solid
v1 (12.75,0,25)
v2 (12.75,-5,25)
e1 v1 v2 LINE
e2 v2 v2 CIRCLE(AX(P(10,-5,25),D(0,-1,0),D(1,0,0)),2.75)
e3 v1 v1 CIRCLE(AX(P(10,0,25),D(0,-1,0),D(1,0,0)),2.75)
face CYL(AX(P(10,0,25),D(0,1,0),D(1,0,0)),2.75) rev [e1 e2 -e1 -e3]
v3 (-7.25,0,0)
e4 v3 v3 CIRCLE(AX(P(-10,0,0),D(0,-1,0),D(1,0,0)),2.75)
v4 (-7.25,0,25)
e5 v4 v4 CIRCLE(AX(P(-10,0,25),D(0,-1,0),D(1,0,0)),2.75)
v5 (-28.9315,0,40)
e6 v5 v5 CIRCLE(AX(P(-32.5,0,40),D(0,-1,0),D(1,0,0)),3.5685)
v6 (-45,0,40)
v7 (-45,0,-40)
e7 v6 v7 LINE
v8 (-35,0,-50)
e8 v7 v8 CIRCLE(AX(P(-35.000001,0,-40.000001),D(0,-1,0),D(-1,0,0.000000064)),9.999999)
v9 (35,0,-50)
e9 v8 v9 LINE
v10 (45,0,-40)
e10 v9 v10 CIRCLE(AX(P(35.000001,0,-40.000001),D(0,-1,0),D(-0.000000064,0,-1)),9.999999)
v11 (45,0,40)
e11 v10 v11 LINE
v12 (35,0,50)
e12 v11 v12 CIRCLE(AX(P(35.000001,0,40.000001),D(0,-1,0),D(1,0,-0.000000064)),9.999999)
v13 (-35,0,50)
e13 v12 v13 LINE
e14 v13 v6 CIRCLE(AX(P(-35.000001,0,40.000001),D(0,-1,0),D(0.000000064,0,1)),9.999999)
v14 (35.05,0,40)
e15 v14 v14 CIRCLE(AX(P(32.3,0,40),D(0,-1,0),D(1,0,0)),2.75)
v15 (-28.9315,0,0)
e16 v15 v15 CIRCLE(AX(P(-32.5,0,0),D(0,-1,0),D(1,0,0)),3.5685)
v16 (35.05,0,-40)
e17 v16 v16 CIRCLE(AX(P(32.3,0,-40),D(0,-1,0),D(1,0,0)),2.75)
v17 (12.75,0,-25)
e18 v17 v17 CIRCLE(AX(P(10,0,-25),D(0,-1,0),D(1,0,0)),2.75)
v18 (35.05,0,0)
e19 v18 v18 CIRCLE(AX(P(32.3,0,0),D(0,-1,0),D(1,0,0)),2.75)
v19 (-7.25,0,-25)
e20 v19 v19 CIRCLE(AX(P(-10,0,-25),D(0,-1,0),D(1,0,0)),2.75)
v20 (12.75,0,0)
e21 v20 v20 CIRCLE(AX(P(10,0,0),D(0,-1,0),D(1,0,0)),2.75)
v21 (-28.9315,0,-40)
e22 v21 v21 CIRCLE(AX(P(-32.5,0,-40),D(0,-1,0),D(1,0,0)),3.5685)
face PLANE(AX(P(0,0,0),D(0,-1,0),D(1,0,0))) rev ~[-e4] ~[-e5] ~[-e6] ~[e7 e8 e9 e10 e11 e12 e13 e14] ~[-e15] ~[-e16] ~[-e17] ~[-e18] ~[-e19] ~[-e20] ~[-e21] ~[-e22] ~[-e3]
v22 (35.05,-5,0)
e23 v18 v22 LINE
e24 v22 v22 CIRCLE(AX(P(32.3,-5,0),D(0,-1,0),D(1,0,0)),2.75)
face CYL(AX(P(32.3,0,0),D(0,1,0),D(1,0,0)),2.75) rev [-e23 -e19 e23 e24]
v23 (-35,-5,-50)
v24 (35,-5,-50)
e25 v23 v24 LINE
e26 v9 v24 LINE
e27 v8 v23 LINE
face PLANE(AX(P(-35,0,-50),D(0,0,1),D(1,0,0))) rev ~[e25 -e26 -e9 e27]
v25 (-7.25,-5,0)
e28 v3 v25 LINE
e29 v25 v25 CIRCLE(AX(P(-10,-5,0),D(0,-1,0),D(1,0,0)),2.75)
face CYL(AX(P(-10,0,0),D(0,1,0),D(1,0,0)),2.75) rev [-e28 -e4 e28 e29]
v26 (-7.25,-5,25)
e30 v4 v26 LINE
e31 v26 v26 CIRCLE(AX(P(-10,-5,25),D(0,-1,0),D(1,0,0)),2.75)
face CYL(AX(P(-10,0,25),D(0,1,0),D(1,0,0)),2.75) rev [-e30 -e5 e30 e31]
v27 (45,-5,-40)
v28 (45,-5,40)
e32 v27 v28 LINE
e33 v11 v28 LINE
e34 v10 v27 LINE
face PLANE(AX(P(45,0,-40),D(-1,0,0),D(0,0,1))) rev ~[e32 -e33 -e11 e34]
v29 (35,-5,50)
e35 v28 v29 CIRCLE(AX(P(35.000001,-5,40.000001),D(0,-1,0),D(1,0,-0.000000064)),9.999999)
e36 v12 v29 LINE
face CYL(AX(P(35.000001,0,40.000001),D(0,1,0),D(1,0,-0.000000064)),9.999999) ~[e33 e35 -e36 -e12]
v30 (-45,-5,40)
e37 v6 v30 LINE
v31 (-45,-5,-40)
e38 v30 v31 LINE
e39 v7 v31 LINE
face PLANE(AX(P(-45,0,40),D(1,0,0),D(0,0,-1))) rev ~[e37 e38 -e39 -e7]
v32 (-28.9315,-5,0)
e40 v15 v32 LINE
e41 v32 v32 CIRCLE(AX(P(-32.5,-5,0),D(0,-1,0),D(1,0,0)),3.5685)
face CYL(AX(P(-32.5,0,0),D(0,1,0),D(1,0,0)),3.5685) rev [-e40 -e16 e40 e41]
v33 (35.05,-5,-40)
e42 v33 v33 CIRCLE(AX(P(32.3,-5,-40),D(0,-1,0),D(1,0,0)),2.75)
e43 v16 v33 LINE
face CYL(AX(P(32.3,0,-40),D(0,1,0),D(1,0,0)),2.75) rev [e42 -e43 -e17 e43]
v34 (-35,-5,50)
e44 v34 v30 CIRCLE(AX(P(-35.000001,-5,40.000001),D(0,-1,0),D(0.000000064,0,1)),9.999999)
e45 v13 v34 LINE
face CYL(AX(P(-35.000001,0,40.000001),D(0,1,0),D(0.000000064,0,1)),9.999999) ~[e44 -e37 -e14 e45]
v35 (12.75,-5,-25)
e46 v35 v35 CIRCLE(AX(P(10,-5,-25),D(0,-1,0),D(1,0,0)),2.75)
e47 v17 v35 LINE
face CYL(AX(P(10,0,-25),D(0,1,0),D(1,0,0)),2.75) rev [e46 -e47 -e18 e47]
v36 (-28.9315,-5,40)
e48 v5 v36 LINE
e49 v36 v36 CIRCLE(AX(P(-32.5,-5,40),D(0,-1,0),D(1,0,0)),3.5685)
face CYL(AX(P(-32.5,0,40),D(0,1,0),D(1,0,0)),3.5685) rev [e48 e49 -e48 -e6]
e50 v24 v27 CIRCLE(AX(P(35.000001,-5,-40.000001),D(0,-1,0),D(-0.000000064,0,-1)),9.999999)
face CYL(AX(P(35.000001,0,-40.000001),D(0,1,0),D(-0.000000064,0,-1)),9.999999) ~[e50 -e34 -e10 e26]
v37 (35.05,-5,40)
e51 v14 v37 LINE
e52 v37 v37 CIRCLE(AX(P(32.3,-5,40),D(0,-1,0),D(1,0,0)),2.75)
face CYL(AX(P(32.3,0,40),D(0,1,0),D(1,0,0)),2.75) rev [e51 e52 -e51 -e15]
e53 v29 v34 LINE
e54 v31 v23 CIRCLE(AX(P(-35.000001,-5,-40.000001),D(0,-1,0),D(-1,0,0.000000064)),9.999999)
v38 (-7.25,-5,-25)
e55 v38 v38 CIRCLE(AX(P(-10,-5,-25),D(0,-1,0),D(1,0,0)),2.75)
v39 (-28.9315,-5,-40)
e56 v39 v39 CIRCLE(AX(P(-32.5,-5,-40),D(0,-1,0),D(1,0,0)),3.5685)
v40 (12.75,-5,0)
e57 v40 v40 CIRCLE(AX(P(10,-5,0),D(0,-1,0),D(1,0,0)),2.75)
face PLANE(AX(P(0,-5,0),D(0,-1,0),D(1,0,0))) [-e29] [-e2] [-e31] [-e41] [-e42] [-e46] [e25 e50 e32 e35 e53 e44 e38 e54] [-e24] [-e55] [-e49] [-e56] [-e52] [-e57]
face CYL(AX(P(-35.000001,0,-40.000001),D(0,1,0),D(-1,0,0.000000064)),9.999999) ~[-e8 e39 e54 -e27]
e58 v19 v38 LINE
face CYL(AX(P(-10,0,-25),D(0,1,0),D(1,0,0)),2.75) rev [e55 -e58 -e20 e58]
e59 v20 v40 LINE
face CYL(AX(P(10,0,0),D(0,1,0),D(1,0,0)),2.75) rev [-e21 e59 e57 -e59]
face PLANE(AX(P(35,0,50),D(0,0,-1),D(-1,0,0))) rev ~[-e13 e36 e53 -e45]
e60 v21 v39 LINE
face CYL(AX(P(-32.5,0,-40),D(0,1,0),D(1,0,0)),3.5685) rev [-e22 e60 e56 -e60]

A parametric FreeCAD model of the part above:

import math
import FreeCAD as App
import Part
import Sketcher

V = App.Vector

doc = App.newDocument("Part")
body = doc.addObject("PartDesign::Body", "Body")

sketch1 = body.newObject("Sketcher::SketchObject", "Sketch")
sketch1.AttachmentSupport = (doc.getObject("XZ_Plane"), [""])
sketch1.MapMode = "FlatFace"
sketch1.addGeometry([
    Part.LineSegment(V(-35, -50, 0), V(35, -50, 0)),
    Part.ArcOfCircle(Part.Circle(V(35.000001, -40.000001, 0), V(0, 0, 1), 9.999999), math.radians(-90.000004), math.radians(0.000004)),
    Part.LineSegment(V(45, -40, 0), V(45, 40, 0)),
    Part.ArcOfCircle(Part.Circle(V(35.000001, 40.000001, 0), V(0, 0, 1), 9.999999), math.radians(-0.000004), math.radians(90.000004)),
    Part.LineSegment(V(35, 50, 0), V(-35, 50, 0)),
    Part.ArcOfCircle(Part.Circle(V(-35.000001, 40.000001, 0), V(0, 0, 1), 9.999999), math.radians(89.999996), math.radians(180.000004)),
    Part.LineSegment(V(-45, 40, 0), V(-45, -40, 0)),
    Part.ArcOfCircle(Part.Circle(V(-35.000001, -40.000001, 0), V(0, 0, 1), 9.999999), math.radians(179.999996), math.radians(270.000004)),
    Part.Circle(V(-32.5, -40, 0), V(0, 0, 1), 3.5685),
    Part.Circle(V(-10, -25, 0), V(0, 0, 1), 2.75),
    Part.Circle(V(10, -25, 0), V(0, 0, 1), 2.75),
    Part.Circle(V(32.3, -40, 0), V(0, 0, 1), 2.75),
    Part.Circle(V(-32.5, 0, 0), V(0, 0, 1), 3.5685),
    Part.Circle(V(-10, 0, 0), V(0, 0, 1), 2.75),
    Part.Circle(V(-32.5, 40, 0), V(0, 0, 1), 3.5685),
    Part.Circle(V(-10, 25, 0), V(0, 0, 1), 2.75),
    Part.Circle(V(10, 0, 0), V(0, 0, 1), 2.75),
    Part.Circle(V(32.3, 0, 0), V(0, 0, 1), 2.75),
    Part.Circle(V(10, 25, 0), V(0, 0, 1), 2.75),
    Part.Circle(V(32.3, 40, 0), V(0, 0, 1), 2.75),
], False)
sketch1.addConstraint([
    Sketcher.Constraint("Tangent", 0, 2, 1, 1),
    Sketcher.Constraint("Tangent", 1, 2, 2, 1),
    Sketcher.Constraint("Tangent", 2, 2, 3, 1),
    Sketcher.Constraint("Tangent", 3, 2, 4, 1),
    Sketcher.Constraint("Tangent", 4, 2, 5, 1),
    Sketcher.Constraint("Tangent", 5, 2, 6, 1),
    Sketcher.Constraint("Tangent", 6, 2, 7, 1),
    Sketcher.Constraint("Tangent", 7, 2, 0, 1),
    Sketcher.Constraint("Horizontal", 0),
    Sketcher.Constraint("Vertical", 2),
    Sketcher.Constraint("Horizontal", 4),
    Sketcher.Constraint("Vertical", 6),
    Sketcher.Constraint("Equal", 1, 3),
    Sketcher.Constraint("Equal", 3, 5),
    Sketcher.Constraint("Equal", 5, 7),
    Sketcher.Constraint("Equal", 9, 10),
    Sketcher.Constraint("Equal", 10, 11),
    Sketcher.Constraint("Equal", 8, 12),
    Sketcher.Constraint("Equal", 11, 13),
    Sketcher.Constraint("Equal", 12, 14),
    Sketcher.Constraint("Equal", 13, 15),
    Sketcher.Constraint("Equal", 15, 16),
    Sketcher.Constraint("Equal", 16, 17),
    Sketcher.Constraint("Equal", 17, 18),
    Sketcher.Constraint("Equal", 18, 19),
    Sketcher.Constraint("Symmetric", 1, 3, 5, 3, -1, 1),
    Sketcher.Constraint("Symmetric", 10, 3, 15, 3, -1, 1),
    Sketcher.Constraint("Symmetric", 13, 3, 16, 3, -1, 1),
    Sketcher.Constraint("Symmetric", 9, 3, 18, 3, -1, 1),
    Sketcher.Constraint("Symmetric", 9, 3, 10, 3, -2),
    Sketcher.Constraint("Symmetric", 8, 3, 14, 3, -1),
    Sketcher.Constraint("Symmetric", 11, 3, 19, 3, -1),
    Sketcher.Constraint("PointOnObject", 12, 3, -1),
    Sketcher.Constraint("PointOnObject", 13, 3, -1),
    Sketcher.Constraint("PointOnObject", 17, 3, -1),
    Sketcher.Constraint("Horizontal", 7, 3, 8, 3),
    Sketcher.Constraint("Horizontal", 8, 3, 11, 3),
    Sketcher.Constraint("Vertical", 8, 3, 12, 3),
    Sketcher.Constraint("Vertical", 9, 3, 13, 3),
    Sketcher.Constraint("Vertical", 11, 3, 17, 3),
    Sketcher.Constraint("Radius", 1, 9.999999),
    Sketcher.Constraint("Diameter", 9, 5.5),
    Sketcher.Constraint("DistanceX", 0, 1, 0, 2, 70.0),
    Sketcher.Constraint("DistanceY", 2, 1, 2, 2, 80.0),
    Sketcher.Constraint("Diameter", 8, 7.137),
    Sketcher.Constraint("DistanceX", 9, 3, -1, 1, 10.0),
    Sketcher.Constraint("DistanceY", 9, 3, -1, 1, 25.0),
    Sketcher.Constraint("DistanceX", 8, 3, -1, 1, 32.5),
    Sketcher.Constraint("DistanceX", -1, 1, 11, 3, 32.3),
])
pad1 = body.newObject("PartDesign::Pad", "Pad")
pad1.Profile = sketch1
pad1.Length = 5

doc.recompute()
